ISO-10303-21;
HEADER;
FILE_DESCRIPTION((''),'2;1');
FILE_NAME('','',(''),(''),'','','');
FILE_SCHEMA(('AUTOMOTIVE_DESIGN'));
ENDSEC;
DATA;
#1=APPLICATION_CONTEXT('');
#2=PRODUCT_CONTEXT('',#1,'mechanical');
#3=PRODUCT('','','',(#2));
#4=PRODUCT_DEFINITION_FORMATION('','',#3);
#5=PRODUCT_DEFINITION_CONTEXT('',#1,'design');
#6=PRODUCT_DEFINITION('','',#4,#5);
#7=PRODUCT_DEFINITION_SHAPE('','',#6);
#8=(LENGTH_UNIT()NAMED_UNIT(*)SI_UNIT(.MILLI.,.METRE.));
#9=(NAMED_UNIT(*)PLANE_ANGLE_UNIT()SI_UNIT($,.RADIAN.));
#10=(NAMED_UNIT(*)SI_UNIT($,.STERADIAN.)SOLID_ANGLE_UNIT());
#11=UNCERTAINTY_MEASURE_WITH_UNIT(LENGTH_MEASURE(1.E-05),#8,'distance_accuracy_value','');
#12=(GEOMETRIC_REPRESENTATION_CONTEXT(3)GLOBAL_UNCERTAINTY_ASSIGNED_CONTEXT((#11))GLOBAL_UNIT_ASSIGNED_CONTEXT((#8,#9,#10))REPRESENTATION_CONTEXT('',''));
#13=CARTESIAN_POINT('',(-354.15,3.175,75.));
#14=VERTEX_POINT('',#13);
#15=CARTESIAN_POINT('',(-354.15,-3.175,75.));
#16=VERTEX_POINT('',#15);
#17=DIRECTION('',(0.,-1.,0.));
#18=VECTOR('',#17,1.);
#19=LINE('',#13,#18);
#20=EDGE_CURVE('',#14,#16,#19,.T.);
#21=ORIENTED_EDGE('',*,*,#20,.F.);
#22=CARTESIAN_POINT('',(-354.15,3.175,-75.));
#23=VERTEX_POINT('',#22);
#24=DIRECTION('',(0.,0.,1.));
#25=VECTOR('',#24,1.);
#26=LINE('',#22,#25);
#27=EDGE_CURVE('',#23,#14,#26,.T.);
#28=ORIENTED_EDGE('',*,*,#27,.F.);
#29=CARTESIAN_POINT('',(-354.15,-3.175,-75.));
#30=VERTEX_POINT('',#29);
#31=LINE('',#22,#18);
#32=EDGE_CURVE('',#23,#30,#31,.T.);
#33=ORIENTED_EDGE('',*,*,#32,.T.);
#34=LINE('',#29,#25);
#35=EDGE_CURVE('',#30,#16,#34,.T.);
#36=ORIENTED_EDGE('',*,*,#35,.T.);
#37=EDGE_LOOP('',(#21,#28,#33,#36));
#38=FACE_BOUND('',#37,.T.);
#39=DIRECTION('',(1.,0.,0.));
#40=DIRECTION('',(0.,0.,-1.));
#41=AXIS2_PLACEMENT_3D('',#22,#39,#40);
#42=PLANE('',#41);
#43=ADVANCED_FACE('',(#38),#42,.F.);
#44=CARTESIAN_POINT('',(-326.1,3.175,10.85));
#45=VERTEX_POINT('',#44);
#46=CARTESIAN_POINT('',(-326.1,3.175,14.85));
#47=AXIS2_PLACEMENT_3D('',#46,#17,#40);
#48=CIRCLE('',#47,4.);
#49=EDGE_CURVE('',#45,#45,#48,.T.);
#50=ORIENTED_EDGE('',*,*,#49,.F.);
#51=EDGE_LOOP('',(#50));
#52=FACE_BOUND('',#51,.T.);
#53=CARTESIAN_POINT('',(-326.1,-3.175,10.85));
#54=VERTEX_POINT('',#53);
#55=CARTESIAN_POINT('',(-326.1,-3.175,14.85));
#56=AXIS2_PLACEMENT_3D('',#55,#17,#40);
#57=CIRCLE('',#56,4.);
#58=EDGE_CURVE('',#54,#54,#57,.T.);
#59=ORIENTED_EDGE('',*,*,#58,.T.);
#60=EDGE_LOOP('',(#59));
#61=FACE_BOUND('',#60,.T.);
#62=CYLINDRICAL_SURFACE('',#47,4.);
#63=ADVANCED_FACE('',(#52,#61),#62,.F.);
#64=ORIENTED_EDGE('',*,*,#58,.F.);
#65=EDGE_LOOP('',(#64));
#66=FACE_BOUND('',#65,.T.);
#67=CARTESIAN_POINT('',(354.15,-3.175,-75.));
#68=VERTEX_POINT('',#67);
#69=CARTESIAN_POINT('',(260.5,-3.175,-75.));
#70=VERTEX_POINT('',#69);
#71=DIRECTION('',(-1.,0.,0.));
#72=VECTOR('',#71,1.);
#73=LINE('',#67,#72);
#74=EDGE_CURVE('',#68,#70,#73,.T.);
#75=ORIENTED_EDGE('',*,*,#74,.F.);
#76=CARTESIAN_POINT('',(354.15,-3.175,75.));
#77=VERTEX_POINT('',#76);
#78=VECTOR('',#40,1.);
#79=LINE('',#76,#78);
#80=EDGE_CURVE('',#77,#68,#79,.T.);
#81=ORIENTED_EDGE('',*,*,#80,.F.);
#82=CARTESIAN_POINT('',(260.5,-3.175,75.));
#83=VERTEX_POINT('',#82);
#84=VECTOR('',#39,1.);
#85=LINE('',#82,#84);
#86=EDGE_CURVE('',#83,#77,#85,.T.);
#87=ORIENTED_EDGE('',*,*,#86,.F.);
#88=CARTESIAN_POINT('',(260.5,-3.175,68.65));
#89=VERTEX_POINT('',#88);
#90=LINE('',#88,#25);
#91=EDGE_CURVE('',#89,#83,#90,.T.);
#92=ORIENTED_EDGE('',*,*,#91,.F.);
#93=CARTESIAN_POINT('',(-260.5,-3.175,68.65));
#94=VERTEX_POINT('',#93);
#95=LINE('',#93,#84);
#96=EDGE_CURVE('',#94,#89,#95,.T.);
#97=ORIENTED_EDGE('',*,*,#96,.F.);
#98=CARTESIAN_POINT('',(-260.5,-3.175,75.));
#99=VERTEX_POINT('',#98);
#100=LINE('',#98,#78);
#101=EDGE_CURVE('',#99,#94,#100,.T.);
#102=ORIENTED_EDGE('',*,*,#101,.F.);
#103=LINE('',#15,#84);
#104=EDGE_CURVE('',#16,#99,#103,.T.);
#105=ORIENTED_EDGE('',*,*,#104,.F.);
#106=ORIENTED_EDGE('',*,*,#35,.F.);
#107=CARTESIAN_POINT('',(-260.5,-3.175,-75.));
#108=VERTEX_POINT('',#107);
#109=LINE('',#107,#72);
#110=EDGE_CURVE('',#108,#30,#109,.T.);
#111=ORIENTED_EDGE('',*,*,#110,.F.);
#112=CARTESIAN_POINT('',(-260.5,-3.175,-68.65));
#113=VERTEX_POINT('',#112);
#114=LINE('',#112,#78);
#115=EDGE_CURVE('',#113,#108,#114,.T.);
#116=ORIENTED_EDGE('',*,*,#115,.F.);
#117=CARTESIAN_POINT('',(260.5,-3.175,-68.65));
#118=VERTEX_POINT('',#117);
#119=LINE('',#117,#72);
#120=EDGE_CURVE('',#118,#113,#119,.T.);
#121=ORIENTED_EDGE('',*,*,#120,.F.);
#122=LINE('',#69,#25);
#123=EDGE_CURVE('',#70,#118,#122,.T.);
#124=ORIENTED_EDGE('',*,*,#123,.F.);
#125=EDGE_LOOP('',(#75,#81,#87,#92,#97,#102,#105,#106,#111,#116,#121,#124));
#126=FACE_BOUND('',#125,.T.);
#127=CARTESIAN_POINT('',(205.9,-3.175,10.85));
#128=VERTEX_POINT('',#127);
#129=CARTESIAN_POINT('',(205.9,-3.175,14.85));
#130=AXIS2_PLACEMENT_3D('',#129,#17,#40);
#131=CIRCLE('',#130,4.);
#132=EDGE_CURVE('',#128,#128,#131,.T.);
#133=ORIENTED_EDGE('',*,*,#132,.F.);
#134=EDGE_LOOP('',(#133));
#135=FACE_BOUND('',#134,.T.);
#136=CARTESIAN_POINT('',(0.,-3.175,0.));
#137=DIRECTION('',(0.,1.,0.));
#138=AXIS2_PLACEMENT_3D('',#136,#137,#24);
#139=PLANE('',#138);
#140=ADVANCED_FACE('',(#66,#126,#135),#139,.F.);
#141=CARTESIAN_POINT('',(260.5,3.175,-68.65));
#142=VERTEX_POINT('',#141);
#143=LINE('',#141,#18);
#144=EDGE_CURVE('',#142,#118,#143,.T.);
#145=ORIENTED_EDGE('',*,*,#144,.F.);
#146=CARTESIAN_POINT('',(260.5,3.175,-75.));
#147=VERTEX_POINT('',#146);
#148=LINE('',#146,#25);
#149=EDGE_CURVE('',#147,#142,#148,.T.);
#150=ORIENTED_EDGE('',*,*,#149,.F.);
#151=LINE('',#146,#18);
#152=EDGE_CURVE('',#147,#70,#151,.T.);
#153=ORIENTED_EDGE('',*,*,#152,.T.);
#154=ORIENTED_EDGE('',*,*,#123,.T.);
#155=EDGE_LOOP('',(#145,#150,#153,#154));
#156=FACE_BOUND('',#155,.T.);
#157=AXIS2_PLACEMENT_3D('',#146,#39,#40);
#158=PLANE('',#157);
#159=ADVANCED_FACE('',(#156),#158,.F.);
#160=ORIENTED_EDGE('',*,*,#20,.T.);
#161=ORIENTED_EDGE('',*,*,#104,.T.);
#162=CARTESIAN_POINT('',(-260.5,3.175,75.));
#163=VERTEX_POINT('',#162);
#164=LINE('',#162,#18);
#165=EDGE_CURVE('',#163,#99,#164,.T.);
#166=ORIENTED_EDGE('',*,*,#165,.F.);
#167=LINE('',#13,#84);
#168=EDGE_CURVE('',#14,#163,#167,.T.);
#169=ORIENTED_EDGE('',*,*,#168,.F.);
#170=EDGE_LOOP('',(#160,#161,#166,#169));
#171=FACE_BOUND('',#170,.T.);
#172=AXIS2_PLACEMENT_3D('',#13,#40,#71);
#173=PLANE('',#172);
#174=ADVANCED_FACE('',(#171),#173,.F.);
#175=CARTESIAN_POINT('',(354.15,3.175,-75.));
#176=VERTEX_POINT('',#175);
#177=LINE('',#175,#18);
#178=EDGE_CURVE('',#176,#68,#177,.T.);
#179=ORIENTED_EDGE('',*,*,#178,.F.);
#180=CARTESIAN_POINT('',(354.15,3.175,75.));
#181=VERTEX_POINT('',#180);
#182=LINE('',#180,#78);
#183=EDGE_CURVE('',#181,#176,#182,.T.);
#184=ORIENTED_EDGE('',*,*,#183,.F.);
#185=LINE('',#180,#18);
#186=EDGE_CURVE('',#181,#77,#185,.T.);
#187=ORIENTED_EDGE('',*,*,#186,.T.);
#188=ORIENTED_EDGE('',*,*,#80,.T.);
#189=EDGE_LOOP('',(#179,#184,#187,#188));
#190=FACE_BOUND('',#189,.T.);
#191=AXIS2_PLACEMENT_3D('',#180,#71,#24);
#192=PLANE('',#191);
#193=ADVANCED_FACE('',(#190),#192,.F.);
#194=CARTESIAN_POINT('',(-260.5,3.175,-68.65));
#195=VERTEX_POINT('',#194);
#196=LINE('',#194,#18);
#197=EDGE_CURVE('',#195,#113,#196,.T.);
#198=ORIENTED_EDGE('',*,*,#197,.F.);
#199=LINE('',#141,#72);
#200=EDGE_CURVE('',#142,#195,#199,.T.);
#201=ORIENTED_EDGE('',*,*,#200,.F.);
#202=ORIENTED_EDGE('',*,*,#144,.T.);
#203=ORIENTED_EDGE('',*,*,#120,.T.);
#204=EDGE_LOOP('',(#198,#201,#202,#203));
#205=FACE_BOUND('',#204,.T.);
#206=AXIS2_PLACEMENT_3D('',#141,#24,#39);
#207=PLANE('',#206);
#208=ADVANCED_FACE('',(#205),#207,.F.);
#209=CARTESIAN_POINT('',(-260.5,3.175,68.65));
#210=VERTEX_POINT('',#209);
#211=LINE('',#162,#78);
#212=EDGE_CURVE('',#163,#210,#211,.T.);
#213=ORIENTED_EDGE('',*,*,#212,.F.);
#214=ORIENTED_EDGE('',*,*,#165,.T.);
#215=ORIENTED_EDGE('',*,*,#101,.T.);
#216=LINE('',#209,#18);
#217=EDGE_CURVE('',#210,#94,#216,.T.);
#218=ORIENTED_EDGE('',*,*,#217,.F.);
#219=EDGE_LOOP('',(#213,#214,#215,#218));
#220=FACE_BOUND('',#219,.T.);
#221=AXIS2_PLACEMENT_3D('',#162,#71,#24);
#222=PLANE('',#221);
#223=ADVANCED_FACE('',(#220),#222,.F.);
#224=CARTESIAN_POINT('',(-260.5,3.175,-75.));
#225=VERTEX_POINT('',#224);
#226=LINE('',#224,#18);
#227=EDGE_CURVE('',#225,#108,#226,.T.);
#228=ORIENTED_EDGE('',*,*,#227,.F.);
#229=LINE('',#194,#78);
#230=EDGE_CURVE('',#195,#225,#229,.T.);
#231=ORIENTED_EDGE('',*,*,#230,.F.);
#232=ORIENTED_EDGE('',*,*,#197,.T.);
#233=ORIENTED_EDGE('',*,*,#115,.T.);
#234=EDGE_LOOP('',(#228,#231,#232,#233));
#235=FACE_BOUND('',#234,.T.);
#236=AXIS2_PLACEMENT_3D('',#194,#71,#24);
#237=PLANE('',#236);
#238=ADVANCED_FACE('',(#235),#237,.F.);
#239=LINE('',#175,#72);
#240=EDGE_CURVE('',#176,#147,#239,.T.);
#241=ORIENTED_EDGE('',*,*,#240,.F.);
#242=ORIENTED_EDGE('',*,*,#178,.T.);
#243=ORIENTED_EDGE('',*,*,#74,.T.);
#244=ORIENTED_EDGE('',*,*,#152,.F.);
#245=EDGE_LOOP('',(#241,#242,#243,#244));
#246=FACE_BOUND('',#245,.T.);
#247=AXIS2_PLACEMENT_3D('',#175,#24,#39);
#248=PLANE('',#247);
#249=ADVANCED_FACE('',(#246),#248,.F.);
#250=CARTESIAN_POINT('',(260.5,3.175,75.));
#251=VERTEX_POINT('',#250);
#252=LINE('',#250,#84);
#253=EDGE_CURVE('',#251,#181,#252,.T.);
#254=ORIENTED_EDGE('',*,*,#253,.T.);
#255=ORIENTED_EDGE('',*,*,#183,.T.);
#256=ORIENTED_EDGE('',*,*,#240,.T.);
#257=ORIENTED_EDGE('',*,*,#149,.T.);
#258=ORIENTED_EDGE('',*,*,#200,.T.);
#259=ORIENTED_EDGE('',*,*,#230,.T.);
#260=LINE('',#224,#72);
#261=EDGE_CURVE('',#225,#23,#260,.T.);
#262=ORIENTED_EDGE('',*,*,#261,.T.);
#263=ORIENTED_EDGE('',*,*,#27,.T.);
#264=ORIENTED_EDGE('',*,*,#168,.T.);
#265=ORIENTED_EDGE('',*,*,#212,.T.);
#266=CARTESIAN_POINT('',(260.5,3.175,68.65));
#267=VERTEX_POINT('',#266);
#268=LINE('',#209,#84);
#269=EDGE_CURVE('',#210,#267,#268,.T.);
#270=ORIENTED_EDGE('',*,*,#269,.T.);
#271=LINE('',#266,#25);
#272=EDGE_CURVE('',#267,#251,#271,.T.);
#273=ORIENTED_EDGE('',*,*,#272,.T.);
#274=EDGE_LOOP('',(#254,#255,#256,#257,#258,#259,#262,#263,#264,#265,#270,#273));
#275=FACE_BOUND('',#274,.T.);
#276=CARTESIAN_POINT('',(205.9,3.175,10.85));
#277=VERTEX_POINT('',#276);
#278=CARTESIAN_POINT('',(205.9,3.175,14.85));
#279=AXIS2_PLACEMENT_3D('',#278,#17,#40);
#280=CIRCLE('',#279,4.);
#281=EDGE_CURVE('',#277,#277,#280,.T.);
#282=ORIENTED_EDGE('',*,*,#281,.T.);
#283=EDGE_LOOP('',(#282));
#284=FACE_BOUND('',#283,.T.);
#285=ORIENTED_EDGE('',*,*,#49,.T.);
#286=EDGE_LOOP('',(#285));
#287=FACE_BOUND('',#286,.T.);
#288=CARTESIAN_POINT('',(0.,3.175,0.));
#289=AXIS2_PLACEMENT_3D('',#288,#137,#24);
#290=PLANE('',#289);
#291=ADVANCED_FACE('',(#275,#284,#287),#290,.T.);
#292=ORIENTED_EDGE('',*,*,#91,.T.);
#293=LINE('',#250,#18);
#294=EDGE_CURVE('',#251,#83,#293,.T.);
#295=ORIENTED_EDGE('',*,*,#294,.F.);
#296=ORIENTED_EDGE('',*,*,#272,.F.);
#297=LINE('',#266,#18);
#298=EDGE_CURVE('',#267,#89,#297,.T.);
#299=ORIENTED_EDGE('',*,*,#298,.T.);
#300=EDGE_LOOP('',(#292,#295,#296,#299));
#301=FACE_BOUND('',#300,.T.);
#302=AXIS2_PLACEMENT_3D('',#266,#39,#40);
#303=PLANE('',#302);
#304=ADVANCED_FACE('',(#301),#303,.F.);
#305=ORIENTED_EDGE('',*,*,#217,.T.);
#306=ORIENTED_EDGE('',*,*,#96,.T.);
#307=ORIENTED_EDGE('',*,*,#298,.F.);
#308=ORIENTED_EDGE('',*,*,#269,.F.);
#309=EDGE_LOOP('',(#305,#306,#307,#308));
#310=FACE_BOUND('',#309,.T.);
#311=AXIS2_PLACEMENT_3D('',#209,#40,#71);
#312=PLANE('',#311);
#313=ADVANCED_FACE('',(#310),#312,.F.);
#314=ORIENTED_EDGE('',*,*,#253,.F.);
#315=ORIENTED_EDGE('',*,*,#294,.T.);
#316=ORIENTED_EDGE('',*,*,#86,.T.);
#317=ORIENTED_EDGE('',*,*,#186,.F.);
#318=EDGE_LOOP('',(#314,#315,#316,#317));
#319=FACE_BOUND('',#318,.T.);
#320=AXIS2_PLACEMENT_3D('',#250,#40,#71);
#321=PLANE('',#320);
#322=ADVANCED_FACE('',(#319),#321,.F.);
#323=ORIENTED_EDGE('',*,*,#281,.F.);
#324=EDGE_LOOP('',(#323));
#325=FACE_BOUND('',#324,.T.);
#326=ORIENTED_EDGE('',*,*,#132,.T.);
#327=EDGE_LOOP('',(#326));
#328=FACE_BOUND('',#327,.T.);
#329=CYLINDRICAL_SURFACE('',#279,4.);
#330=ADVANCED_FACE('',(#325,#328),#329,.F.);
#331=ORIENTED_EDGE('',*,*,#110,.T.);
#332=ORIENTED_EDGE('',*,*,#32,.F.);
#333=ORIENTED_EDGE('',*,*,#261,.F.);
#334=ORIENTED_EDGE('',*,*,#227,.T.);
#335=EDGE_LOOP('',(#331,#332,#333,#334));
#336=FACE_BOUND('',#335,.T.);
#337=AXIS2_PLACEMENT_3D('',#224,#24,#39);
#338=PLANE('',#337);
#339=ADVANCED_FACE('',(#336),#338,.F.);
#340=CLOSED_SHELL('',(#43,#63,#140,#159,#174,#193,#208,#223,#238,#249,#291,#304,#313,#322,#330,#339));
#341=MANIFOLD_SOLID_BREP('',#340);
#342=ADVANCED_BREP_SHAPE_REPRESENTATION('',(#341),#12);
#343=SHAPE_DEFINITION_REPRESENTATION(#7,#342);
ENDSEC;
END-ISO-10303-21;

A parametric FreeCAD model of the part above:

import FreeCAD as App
import Part
import Sketcher

V = App.Vector
Q = App.Units.Quantity

doc = App.newDocument("Part")
params = doc.addObject("Spreadsheet::Sheet", "Params")
for row, (alias, value) in enumerate([
    ("sketch1_width", "521 mm"),
    ("sketch1_height", "150 mm"),
    ("sketch1_width2", "93.65 mm"),
    ("sketch1_height2", "6.35 mm"),
    ("pad1_length", "6.35 mm"),
    ("sketch2_diameter", "8 mm"),
], start=1):
    params.set(f"A{row}", alias)
    params.set(f"B{row}", "=" + value)
    params.setAlias(f"B{row}", alias)

body = doc.addObject("PartDesign::Body", "Body")

sketch1 = doc.addObject("Sketcher::SketchObject", "Sketch")
body.addObject(sketch1)
sketch1.AttachmentSupport = (doc.XZ_Plane, [""])
sketch1.MapMode = "FlatFace"
sketch1.addGeometry(Part.LineSegment(V(-354, -75, 0), V(-354, 75, 0)), False)
sketch1.addGeometry(Part.LineSegment(V(-354, 75, 0), V(-260, 75, 0)), False)
sketch1.addGeometry(Part.LineSegment(V(-260, 75, 0), V(-260, 69, 0)), False)
sketch1.addGeometry(Part.LineSegment(V(-260, 69, 0), V(260, 69, 0)), False)
sketch1.addGeometry(Part.LineSegment(V(260, 69, 0), V(260, 75, 0)), False)
sketch1.addGeometry(Part.LineSegment(V(260, 75, 0), V(354, 75, 0)), False)
sketch1.addGeometry(Part.LineSegment(V(354, 75, 0), V(354, -75, 0)), False)
sketch1.addGeometry(Part.LineSegment(V(354, -75, 0), V(260, -75, 0)), False)
sketch1.addGeometry(Part.LineSegment(V(260, -75, 0), V(260, -69, 0)), False)
sketch1.addGeometry(Part.LineSegment(V(260, -69, 0), V(-260, -69, 0)), False)
sketch1.addGeometry(Part.LineSegment(V(-260, -69, 0), V(-260, -75, 0)), False)
sketch1.addGeometry(Part.LineSegment(V(-260, -75, 0), V(-354, -75, 0)), False)
sketch1.addConstraint(Sketcher.Constraint("Coincident", 0, 2, 1, 1))
sketch1.addConstraint(Sketcher.Constraint("Coincident", 1, 2, 2, 1))
sketch1.addConstraint(Sketcher.Constraint("Coincident", 2, 2, 3, 1))
sketch1.addConstraint(Sketcher.Constraint("Coincident", 3, 2, 4, 1))
sketch1.addConstraint(Sketcher.Constraint("Coincident", 4, 2, 5, 1))
sketch1.addConstraint(Sketcher.Constraint("Coincident", 5, 2, 6, 1))
sketch1.addConstraint(Sketcher.Constraint("Coincident", 6, 2, 7, 1))
sketch1.addConstraint(Sketcher.Constraint("Coincident", 7, 2, 8, 1))
sketch1.addConstraint(Sketcher.Constraint("Coincident", 8, 2, 9, 1))
sketch1.addConstraint(Sketcher.Constraint("Coincident", 9, 2, 10, 1))
sketch1.addConstraint(Sketcher.Constraint("Coincident", 10, 2, 11, 1))
sketch1.addConstraint(Sketcher.Constraint("Coincident", 11, 2, 0, 1))
sketch1.addConstraint(Sketcher.Constraint("Vertical", 0))
sketch1.addConstraint(Sketcher.Constraint("Horizontal", 1))
sketch1.addConstraint(Sketcher.Constraint("Vertical", 2))
sketch1.addConstraint(Sketcher.Constraint("Horizontal", 3))
sketch1.addConstraint(Sketcher.Constraint("Vertical", 4))
sketch1.addConstraint(Sketcher.Constraint("Horizontal", 5))
sketch1.addConstraint(Sketcher.Constraint("Vertical", 6))
sketch1.addConstraint(Sketcher.Constraint("Horizontal", 7))
sketch1.addConstraint(Sketcher.Constraint("Vertical", 8))
sketch1.addConstraint(Sketcher.Constraint("Horizontal", 9))
sketch1.addConstraint(Sketcher.Constraint("Vertical", 10))
sketch1.addConstraint(Sketcher.Constraint("Horizontal", 11))
sketch1.addConstraint(Sketcher.Constraint("Symmetric", 0, 2, 6, 2, -1, 1))
sketch1.addConstraint(Sketcher.Constraint("Symmetric", 2, 2, 8, 2, -1, 1))
sketch1.addConstraint(Sketcher.Constraint("Symmetric", 4, 2, 10, 2, -1, 1))
sketch1.addConstraint(Sketcher.Constraint("Symmetric", 1, 2, 4, 2, -2))
sketch1.addConstraint(Sketcher.Constraint("DistanceX", 3, 1, 3, 2, Q("521 mm")))
sketch1.addConstraint(Sketcher.Constraint("DistanceY", 0, 1, 0, 2, Q("150 mm")))
sketch1.addConstraint(Sketcher.Constraint("DistanceX", 1, 1, 1, 2, Q("93.65 mm")))
sketch1.addConstraint(Sketcher.Constraint("DistanceY", 2, 2, 2, 1, Q("6.35 mm")))
sketch1.setExpression("Constraints[28]", "Params.sketch1_width")
sketch1.setExpression("Constraints[29]", "Params.sketch1_height")
sketch1.setExpression("Constraints[30]", "Params.sketch1_width2")
sketch1.setExpression("Constraints[31]", "Params.sketch1_height2")
pad1 = doc.addObject("PartDesign::Pad", "Pad")
body.addObject(pad1)
pad1.Profile = sketch1
pad1.setExpression("Length", "Params.pad1_length")
pad1.Midplane = True

sketch2 = doc.addObject("Sketcher::SketchObject", "Sketch001")
body.addObject(sketch2)
sketch2.AttachmentSupport = (doc.XZ_Plane, [""])
sketch2.MapMode = "FlatFace"
sketch2.AttachmentOffset = App.Placement(V(0, 0, 3.175), App.Rotation())
sketch2.addGeometry(Part.Circle(V(-326.1, 14.8, 0), V(0, 0, 1), 4), False)
sketch2.addGeometry(Part.Circle(V(205.9, 14.8, 0), V(0, 0, 1), 4), False)
sketch2.addConstraint(Sketcher.Constraint("Equal", 0, 1))
sketch2.addConstraint(Sketcher.Constraint("Horizontal", 0, 3, 1, 3))
sketch2.addConstraint(Sketcher.Constraint("Diameter", 0, Q("8 mm")))
sketch2.addConstraint(Sketcher.Constraint("DistanceX", 0, 3, 1, 3, Q("532 mm")))
sketch2.addConstraint(Sketcher.Constraint("DistanceX", 0, 3, -1, 1, Q("326.1 mm")))
sketch2.addConstraint(Sketcher.Constraint("DistanceY", -1, 1, 0, 3, Q("14.85 mm")))
sketch2.setExpression("Constraints[2]", "Params.sketch2_diameter")
pocket1 = doc.addObject("PartDesign::Pocket", "Pocket")
body.addObject(pocket1)
pocket1.Profile = sketch2
pocket1.Type = "ThroughAll"

doc.recompute()
